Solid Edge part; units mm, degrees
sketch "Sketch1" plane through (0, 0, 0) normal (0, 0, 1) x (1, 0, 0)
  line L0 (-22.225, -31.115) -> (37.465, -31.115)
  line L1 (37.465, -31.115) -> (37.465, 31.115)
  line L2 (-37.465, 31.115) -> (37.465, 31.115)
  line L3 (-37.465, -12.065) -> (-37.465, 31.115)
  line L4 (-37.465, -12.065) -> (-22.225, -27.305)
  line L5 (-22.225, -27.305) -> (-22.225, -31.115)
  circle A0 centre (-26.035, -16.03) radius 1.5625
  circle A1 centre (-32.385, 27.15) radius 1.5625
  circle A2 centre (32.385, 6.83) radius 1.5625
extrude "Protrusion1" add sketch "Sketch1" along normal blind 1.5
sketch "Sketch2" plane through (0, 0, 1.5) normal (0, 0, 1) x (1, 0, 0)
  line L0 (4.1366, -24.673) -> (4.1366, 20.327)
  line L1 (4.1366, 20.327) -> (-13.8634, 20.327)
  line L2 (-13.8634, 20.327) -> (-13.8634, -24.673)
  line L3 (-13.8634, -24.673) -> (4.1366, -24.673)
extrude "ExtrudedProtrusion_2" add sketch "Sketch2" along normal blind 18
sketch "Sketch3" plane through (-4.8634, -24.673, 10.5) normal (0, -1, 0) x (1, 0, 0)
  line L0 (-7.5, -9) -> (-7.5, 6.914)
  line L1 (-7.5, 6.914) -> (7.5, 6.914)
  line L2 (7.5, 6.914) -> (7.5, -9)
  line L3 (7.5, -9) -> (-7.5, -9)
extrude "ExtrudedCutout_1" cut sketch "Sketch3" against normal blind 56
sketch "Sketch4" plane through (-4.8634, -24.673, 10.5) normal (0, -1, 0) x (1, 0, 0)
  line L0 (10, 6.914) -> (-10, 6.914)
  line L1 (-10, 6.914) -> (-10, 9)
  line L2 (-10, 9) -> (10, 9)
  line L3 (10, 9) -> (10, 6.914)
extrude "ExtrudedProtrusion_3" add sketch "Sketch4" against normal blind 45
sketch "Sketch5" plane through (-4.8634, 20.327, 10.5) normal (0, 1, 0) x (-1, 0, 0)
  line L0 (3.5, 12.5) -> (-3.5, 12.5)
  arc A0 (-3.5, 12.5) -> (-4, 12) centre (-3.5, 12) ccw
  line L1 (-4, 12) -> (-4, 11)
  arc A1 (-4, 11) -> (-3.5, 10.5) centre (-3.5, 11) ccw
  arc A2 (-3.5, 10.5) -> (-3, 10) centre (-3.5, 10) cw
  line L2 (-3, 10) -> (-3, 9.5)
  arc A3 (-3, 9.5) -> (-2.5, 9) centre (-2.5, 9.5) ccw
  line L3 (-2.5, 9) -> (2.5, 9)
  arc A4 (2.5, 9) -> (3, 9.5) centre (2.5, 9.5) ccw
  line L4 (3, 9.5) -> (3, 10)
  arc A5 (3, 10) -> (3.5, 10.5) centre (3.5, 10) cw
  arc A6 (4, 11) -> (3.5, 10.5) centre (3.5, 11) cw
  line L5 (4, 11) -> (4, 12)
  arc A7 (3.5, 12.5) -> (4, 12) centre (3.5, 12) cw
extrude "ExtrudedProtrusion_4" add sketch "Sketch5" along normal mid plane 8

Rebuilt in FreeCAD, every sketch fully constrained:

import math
import FreeCAD as App
import Part
import Sketcher
Q = App.Units.Quantity

doc = App.newDocument("Part")
body = doc.addObject("PartDesign::Body", "Body")

# Sketch on XY plane
sketch1 = body.newObject("Sketcher::SketchObject", "Sketch")
sketch1.AttachmentSupport = (doc.getObject("XY_Plane"), [""])
sketch1.MapMode = "FlatFace"
sketch1.addGeometry([
    Part.LineSegment(App.Vector(-22.2, -27.3, 0), App.Vector(-22.2, -31.1, 0)),  # 0
    Part.LineSegment(App.Vector(-22.2, -31.1, 0), App.Vector(37.5, -31.1, 0)),  # 1
    Part.LineSegment(App.Vector(37.5, -31.1, 0), App.Vector(37.5, 31.1, 0)),  # 2
    Part.LineSegment(App.Vector(37.5, 31.1, 0), App.Vector(-37.5, 31.1, 0)),  # 3
    Part.LineSegment(App.Vector(-37.5, 31.1, 0), App.Vector(-37.5, -12.1, 0)),  # 4
    Part.LineSegment(App.Vector(-37.5, -12.1, 0), App.Vector(-22.2, -27.3, 0)),  # 5
    Part.Circle(App.Vector(-26, -16, 0), App.Vector(0, 0, 1), 1.6),  # 6
    Part.Circle(App.Vector(-32.4, 27.1, 0), App.Vector(0, 0, 1), 1.6),  # 7
    Part.Circle(App.Vector(32.4, 6.8, 0), App.Vector(0, 0, 1), 1.6),  # 8
], False)
sketch1.addConstraint([
    Sketcher.Constraint("Coincident", 0, 2, 1, 1),
    Sketcher.Constraint("Coincident", 1, 2, 2, 1),
    Sketcher.Constraint("Coincident", 2, 2, 3, 1),
    Sketcher.Constraint("Coincident", 3, 2, 4, 1),
    Sketcher.Constraint("Coincident", 4, 2, 5, 1),
    Sketcher.Constraint("Coincident", 5, 2, 0, 1),
    Sketcher.Constraint("Vertical", 0),
    Sketcher.Constraint("Horizontal", 1),
    Sketcher.Constraint("Vertical", 2),
    Sketcher.Constraint("Horizontal", 3),
    Sketcher.Constraint("Vertical", 4),
    Sketcher.Constraint("Equal", 6, 7),
    Sketcher.Constraint("Equal", 7, 8),
    Sketcher.Constraint("Symmetric", 1, 2, 3, 2, -1, 1),
    Sketcher.Constraint("Angle", 5, Q("-45 deg")),
    Sketcher.Constraint("Diameter", 6, 3.125),
    Sketcher.Constraint("DistanceX", 1, 1, 1, 2, 59.69),
    Sketcher.Constraint("DistanceX", 3, 2, 3, 1, 74.93),
    Sketcher.Constraint("DistanceY", 0, 2, 0, 1, 3.81),
    Sketcher.Constraint("DistanceY", 2, 1, 2, 2, 62.23),
    Sketcher.Constraint("DistanceX", 6, 3, 1, 2, 63.5),
    Sketcher.Constraint("DistanceY", 6, 3, -1, 1, 16.03),
    Sketcher.Constraint("DistanceY", -1, 1, 7, 3, 27.15),
    Sketcher.Constraint("DistanceY", -1, 1, 8, 3, 6.83),
    Sketcher.Constraint("DistanceX", 7, 3, 6, 3, 6.35),
    Sketcher.Constraint("DistanceX", 6, 3, 8, 3, 58.42),
])
pad1 = body.newObject("PartDesign::Pad", "Pad")
pad1.Profile = sketch1
pad1.Length = 1.5

# Sketch on XY plane
sketch2 = body.newObject("Sketcher::SketchObject", "Sketch001")
sketch2.AttachmentSupport = (doc.getObject("XY_Plane"), [""])
sketch2.MapMode = "FlatFace"
sketch2.AttachmentOffset = App.Placement(App.Vector(0, 0, 1.5), App.Rotation())
sketch2.addGeometry([
    Part.LineSegment(App.Vector(-14, -25, 0), App.Vector(4, -25, 0)),
    Part.LineSegment(App.Vector(4, -25, 0), App.Vector(4, 20, 0)),
    Part.LineSegment(App.Vector(4, 20, 0), App.Vector(-14, 20, 0)),
    Part.LineSegment(App.Vector(-14, 20, 0), App.Vector(-14, -25, 0)),
], False)
sketch2.addConstraint([
    Sketcher.Constraint("Coincident", 0, 2, 1, 1),
    Sketcher.Constraint("Coincident", 1, 2, 2, 1),
    Sketcher.Constraint("Coincident", 2, 2, 3, 1),
    Sketcher.Constraint("Coincident", 3, 2, 0, 1),
    Sketcher.Constraint("Horizontal", 0),
    Sketcher.Constraint("Vertical", 1),
    Sketcher.Constraint("Horizontal", 2),
    Sketcher.Constraint("Vertical", 3),
    Sketcher.Constraint("DistanceX", 0, 1, 0, 2, 18.0),
    Sketcher.Constraint("DistanceY", 1, 1, 1, 2, 45.0),
    Sketcher.Constraint("DistanceY", 0, 2, -1, 1, 24.673),
    Sketcher.Constraint("DistanceX", -1, 1, 0, 2, 4.1366),
])
pad2 = body.newObject("PartDesign::Pad", "Pad001")
pad2.Profile = sketch2
pad2.Length = 18

# Sketch on XZ plane
sketch3 = body.newObject("Sketcher::SketchObject", "Sketch002")
sketch3.AttachmentSupport = (doc.getObject("XZ_Plane"), [""])
sketch3.MapMode = "FlatFace"
sketch3.AttachmentOffset = App.Placement(App.Vector(0, 0, 24.673), App.Rotation())
sketch3.addGeometry([
    Part.LineSegment(App.Vector(-12, 17, 0), App.Vector(-12, 2, 0)),
    Part.LineSegment(App.Vector(-12, 2, 0), App.Vector(3, 2, 0)),
    Part.LineSegment(App.Vector(3, 2, 0), App.Vector(3, 17, 0)),
    Part.LineSegment(App.Vector(3, 17, 0), App.Vector(-12, 17, 0)),
], False)
sketch3.addConstraint([
    Sketcher.Constraint("Coincident", 0, 2, 1, 1),
    Sketcher.Constraint("Coincident", 1, 2, 2, 1),
    Sketcher.Constraint("Coincident", 2, 2, 3, 1),
    Sketcher.Constraint("Coincident", 3, 2, 0, 1),
    Sketcher.Constraint("Vertical", 0),
    Sketcher.Constraint("Horizontal", 1),
    Sketcher.Constraint("Vertical", 2),
    Sketcher.Constraint("Horizontal", 3),
    Sketcher.Constraint("DistanceX", 1, 1, 1, 2, 15.0),
    Sketcher.Constraint("DistanceY", -1, 1, 0, 2, 1.5),
    Sketcher.Constraint("DistanceY", 0, 2, 0, 1, 15.914),
    Sketcher.Constraint("DistanceX", 0, 2, -1, 1, 12.3634),
])
pocket1 = body.newObject("PartDesign::Pocket", "Pocket")
pocket1.Profile = sketch3
pocket1.Length = 56

# Sketch on XZ plane
sketch4 = body.newObject("Sketcher::SketchObject", "Sketch003")
sketch4.AttachmentSupport = (doc.getObject("XZ_Plane"), [""])
sketch4.MapMode = "FlatFace"
sketch4.AttachmentOffset = App.Placement(App.Vector(0, 0, 24.673), App.Rotation())
sketch4.addGeometry([
    Part.LineSegment(App.Vector(-14.9, 17.4, 0), App.Vector(5.1, 17.4, 0)),
    Part.LineSegment(App.Vector(5.1, 17.4, 0), App.Vector(5.1, 19.5, 0)),
    Part.LineSegment(App.Vector(5.1, 19.5, 0), App.Vector(-14.9, 19.5, 0)),
    Part.LineSegment(App.Vector(-14.9, 19.5, 0), App.Vector(-14.9, 17.4, 0)),
], False)
sketch4.addConstraint([
    Sketcher.Constraint("Coincident", 0, 2, 1, 1),
    Sketcher.Constraint("Coincident", 1, 2, 2, 1),
    Sketcher.Constraint("Coincident", 2, 2, 3, 1),
    Sketcher.Constraint("Coincident", 3, 2, 0, 1),
    Sketcher.Constraint("Horizontal", 0),
    Sketcher.Constraint("Vertical", 1),
    Sketcher.Constraint("Horizontal", 2),
    Sketcher.Constraint("Vertical", 3),
    Sketcher.Constraint("DistanceX", 0, 1, 0, 2, 20.0),
    Sketcher.Constraint("DistanceY", -1, 1, 1, 2, 19.5),
    Sketcher.Constraint("DistanceY", 1, 1, 1, 2, 2.086),
    Sketcher.Constraint("DistanceX", -1, 1, 0, 2, 5.1366),
])
pad3 = body.newObject("PartDesign::Pad", "Pad002")
pad3.Profile = sketch4
pad3.Length = 45
pad3.Reversed = True

# Sketch on XZ plane
sketch5 = body.newObject("Sketcher::SketchObject", "Sketch004")
sketch5.AttachmentSupport = (doc.getObject("XZ_Plane"), [""])
sketch5.MapMode = "FlatFace"
sketch5.AttachmentOffset = App.Placement(App.Vector(0, 0, -20.327), App.Rotation())
sketch5.addGeometry([
    Part.ArcOfCircle(Part.Circle(App.Vector(-8.4, 22.5, 0), App.Vector(0, 0, 1), 0.5), math.radians(90), math.radians(180)),  # 0
    Part.LineSegment(App.Vector(-8.4, 23, 0), App.Vector(-1.4, 23, 0)),  # 1
    Part.ArcOfCircle(Part.Circle(App.Vector(-1.4, 22.5, 0), App.Vector(0, 0, 1), 0.5), math.radians(0), math.radians(90)),  # 2
    Part.LineSegment(App.Vector(-0.9, 22.5, 0), App.Vector(-0.9, 21.5, 0)),  # 3
    Part.ArcOfCircle(Part.Circle(App.Vector(-1.4, 21.5, 0), App.Vector(0, 0, 1), 0.5), math.radians(-90), math.radians(0)),  # 4
    Part.ArcOfCircle(Part.Circle(App.Vector(-1.4, 20.5, 0), App.Vector(0, 0, 1), 0.5), math.radians(90), math.radians(180)),  # 5
    Part.LineSegment(App.Vector(-1.9, 20.5, 0), App.Vector(-1.9, 20, 0)),  # 6
    Part.ArcOfCircle(Part.Circle(App.Vector(-2.4, 20, 0), App.Vector(0, 0, 1), 0.5), math.radians(-90), math.radians(0)),  # 7
    Part.LineSegment(App.Vector(-2.4, 19.5, 0), App.Vector(-7.4, 19.5, 0)),  # 8
    Part.ArcOfCircle(Part.Circle(App.Vector(-7.4, 20, 0), App.Vector(0, 0, 1), 0.5), math.radians(180), math.radians(270)),  # 9
    Part.LineSegment(App.Vector(-7.9, 20, 0), App.Vector(-7.9, 20.5, 0)),  # 10
    Part.ArcOfCircle(Part.Circle(App.Vector(-8.4, 20.5, 0), App.Vector(0, 0, 1), 0.5), math.radians(0), math.radians(90)),  # 11
    Part.ArcOfCircle(Part.Circle(App.Vector(-8.4, 21.5, 0), App.Vector(0, 0, 1), 0.5), math.radians(180), math.radians(270)),  # 12
    Part.LineSegment(App.Vector(-8.9, 21.5, 0), App.Vector(-8.9, 22.5, 0)),  # 13
], False)
sketch5.addConstraint([
    Sketcher.Constraint("Tangent", 0, 1, 1, 1),
    Sketcher.Constraint("Tangent", 1, 2, 2, 2),
    Sketcher.Constraint("Tangent", 2, 1, 3, 1),
    Sketcher.Constraint("Tangent", 3, 2, 4, 2),
    Sketcher.Constraint("Tangent", 4, 1, 5, 1),
    Sketcher.Constraint("Tangent", 5, 2, 6, 1),
    Sketcher.Constraint("Tangent", 6, 2, 7, 2),
    Sketcher.Constraint("Tangent", 7, 1, 8, 1),
    Sketcher.Constraint("Tangent", 8, 2, 9, 2),
    Sketcher.Constraint("Tangent", 9, 1, 10, 1),
    Sketcher.Constraint("Tangent", 10, 2, 11, 1),
    Sketcher.Constraint("Tangent", 11, 2, 12, 2),
    Sketcher.Constraint("Tangent", 12, 1, 13, 1),
    Sketcher.Constraint("Tangent", 13, 2, 0, 2),
    Sketcher.Constraint("Horizontal", 1),
    Sketcher.Constraint("Vertical", 3),
    Sketcher.Constraint("Vertical", 6),
    Sketcher.Constraint("Horizontal", 8),
    Sketcher.Constraint("Vertical", 10),
    Sketcher.Constraint("Vertical", 13),
    Sketcher.Constraint("Equal", 0, 2),
    Sketcher.Constraint("Equal", 2, 4),
    Sketcher.Constraint("Equal", 4, 5),
    Sketcher.Constraint("Equal", 5, 7),
    Sketcher.Constraint("Equal", 7, 9),
    Sketcher.Constraint("Equal", 9, 11),
    Sketcher.Constraint("Equal", 11, 12),
    Sketcher.Constraint("Horizontal", 5, 3, 11, 3),
    Sketcher.Constraint("Vertical", 4, 3, 5, 3),
    Sketcher.Constraint("Vertical", 0, 3, 11, 3),
    Sketcher.Constraint("Radius", 0, 0.5),
    Sketcher.Constraint("DistanceX", 1, 1, 1, 2, 7.0),
    Sketcher.Constraint("DistanceY", 3, 2, 3, 1, 1.0),
    Sketcher.Constraint("DistanceY", 6, 2, 6, 1, 0.5),
    Sketcher.Constraint("DistanceY", -1, 1, 7, 3, 20.0),
    Sketcher.Constraint("DistanceX", 0, 3, -1, 1, 8.3634),
])
pad4 = body.newObject("PartDesign::Pad", "Pad003")
pad4.Profile = sketch5
pad4.Length = 8
pad4.Midplane = True

doc.recompute()
